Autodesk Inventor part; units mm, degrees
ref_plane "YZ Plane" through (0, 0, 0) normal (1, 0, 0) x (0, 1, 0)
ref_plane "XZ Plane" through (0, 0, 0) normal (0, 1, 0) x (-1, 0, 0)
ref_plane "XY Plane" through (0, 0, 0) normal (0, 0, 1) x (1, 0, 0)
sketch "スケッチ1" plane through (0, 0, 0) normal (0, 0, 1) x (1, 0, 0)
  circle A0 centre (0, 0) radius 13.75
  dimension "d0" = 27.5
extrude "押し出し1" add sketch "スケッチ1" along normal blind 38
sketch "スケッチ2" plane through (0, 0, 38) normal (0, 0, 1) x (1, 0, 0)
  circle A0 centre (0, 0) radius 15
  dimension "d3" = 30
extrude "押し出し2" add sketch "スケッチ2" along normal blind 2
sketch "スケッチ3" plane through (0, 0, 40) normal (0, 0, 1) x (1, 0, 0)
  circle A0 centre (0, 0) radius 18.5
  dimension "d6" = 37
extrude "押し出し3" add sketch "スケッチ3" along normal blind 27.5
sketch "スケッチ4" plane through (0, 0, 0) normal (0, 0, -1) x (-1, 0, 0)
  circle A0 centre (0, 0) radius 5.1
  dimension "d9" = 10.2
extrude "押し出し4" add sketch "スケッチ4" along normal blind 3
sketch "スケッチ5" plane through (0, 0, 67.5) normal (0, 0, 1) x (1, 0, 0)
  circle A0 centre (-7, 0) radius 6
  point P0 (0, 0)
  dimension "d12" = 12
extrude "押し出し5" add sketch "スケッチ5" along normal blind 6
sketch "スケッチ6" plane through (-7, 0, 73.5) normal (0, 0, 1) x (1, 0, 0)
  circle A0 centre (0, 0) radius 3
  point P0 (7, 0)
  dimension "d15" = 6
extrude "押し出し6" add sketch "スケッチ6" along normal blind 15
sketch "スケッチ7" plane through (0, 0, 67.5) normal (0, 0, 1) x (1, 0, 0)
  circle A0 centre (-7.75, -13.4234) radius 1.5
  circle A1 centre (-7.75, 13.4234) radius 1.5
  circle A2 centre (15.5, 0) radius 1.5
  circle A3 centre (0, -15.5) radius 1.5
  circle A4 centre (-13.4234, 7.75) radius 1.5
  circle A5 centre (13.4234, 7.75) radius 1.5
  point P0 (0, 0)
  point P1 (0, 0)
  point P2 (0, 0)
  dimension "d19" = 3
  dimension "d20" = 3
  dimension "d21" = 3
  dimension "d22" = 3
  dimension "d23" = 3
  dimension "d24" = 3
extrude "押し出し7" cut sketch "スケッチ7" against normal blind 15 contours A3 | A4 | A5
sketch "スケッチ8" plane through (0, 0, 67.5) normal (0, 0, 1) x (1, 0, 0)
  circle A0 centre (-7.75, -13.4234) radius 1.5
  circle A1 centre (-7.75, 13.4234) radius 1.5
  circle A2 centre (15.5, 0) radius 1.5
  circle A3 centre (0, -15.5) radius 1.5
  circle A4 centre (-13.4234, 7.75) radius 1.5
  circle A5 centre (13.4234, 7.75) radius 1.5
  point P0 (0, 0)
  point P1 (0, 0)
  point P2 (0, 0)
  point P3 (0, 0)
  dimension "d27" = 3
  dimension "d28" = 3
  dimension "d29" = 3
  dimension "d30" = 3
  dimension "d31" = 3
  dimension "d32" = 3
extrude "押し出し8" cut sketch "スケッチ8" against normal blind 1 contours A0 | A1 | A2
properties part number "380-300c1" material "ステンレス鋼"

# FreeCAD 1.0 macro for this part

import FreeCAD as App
import Part
import Sketcher
from FreeCAD import Vector

doc = App.newDocument("Part")
body = doc.addObject("PartDesign::Body", "Body")

# Sketch on XY plane
sketch1 = doc.addObject("Sketcher::SketchObject", "Sketch")
body.addObject(sketch1)
sketch1.AttachmentSupport = (doc.XY_Plane, [""])
sketch1.MapMode = "FlatFace"
sketch1.addGeometry(Part.Circle(Vector(0, 0, 0), Vector(0, 0, 1), 13.75), False)
sketch1.addConstraint(Sketcher.Constraint("Coincident", 0, 3, -1, 1))
sketch1.addConstraint(Sketcher.Constraint("Diameter", 0, 27.5))
pad1 = doc.addObject("PartDesign::Pad", "Pad")
body.addObject(pad1)
pad1.Profile = sketch1
pad1.Length = 38

# Sketch on XY plane
sketch2 = doc.addObject("Sketcher::SketchObject", "Sketch001")
body.addObject(sketch2)
sketch2.AttachmentSupport = (doc.XY_Plane, [""])
sketch2.MapMode = "FlatFace"
sketch2.AttachmentOffset = App.Placement(Vector(0, 0, 38), App.Rotation())
sketch2.addGeometry(Part.Circle(Vector(0, 0, 0), Vector(0, 0, 1), 15), False)
sketch2.addConstraint(Sketcher.Constraint("Coincident", 0, 3, -1, 1))
sketch2.addConstraint(Sketcher.Constraint("Diameter", 0, 30.0))
pad2 = doc.addObject("PartDesign::Pad", "Pad001")
body.addObject(pad2)
pad2.Profile = sketch2
pad2.Length = 2

# Sketch on XY plane
sketch3 = doc.addObject("Sketcher::SketchObject", "Sketch002")
body.addObject(sketch3)
sketch3.AttachmentSupport = (doc.XY_Plane, [""])
sketch3.MapMode = "FlatFace"
sketch3.AttachmentOffset = App.Placement(Vector(0, 0, 40), App.Rotation())
sketch3.addGeometry(Part.Circle(Vector(0, 0, 0), Vector(0, 0, 1), 18.5), False)
sketch3.addConstraint(Sketcher.Constraint("Coincident", 0, 3, -1, 1))
sketch3.addConstraint(Sketcher.Constraint("Diameter", 0, 37.0))
pad3 = doc.addObject("PartDesign::Pad", "Pad002")
body.addObject(pad3)
pad3.Profile = sketch3
pad3.Length = 27.5

# Sketch on XY plane
sketch4 = doc.addObject("Sketcher::SketchObject", "Sketch003")
body.addObject(sketch4)
sketch4.AttachmentSupport = (doc.XY_Plane, [""])
sketch4.MapMode = "FlatFace"
sketch4.addGeometry(Part.Circle(Vector(0, 0, 0), Vector(0, 0, 1), 5.1), False)
sketch4.addConstraint(Sketcher.Constraint("Coincident", 0, 3, -1, 1))
sketch4.addConstraint(Sketcher.Constraint("Diameter", 0, 10.2))
pad4 = doc.addObject("PartDesign::Pad", "Pad003")
body.addObject(pad4)
pad4.Profile = sketch4
pad4.Length = 3
pad4.Reversed = True

# Sketch on XY plane
sketch5 = doc.addObject("Sketcher::SketchObject", "Sketch004")
body.addObject(sketch5)
sketch5.AttachmentSupport = (doc.XY_Plane, [""])
sketch5.MapMode = "FlatFace"
sketch5.AttachmentOffset = App.Placement(Vector(0, 0, 67.5), App.Rotation())
sketch5.addGeometry(Part.Circle(Vector(-7, 0, 0), Vector(0, 0, 1), 6), False)
sketch5.addConstraint(Sketcher.Constraint("PointOnObject", 0, 3, -1))
sketch5.addConstraint(Sketcher.Constraint("Diameter", 0, 12.0))
sketch5.addConstraint(Sketcher.Constraint("DistanceX", 0, 3, -1, 1, 7.0))
pad5 = doc.addObject("PartDesign::Pad", "Pad004")
body.addObject(pad5)
pad5.Profile = sketch5
pad5.Length = 6

# Sketch on XY plane
sketch6 = doc.addObject("Sketcher::SketchObject", "Sketch005")
body.addObject(sketch6)
sketch6.AttachmentSupport = (doc.XY_Plane, [""])
sketch6.MapMode = "FlatFace"
sketch6.AttachmentOffset = App.Placement(Vector(0, 0, 73.5), App.Rotation())
sketch6.addGeometry(Part.Circle(Vector(-7, 0, 0), Vector(0, 0, 1), 3), False)
sketch6.addConstraint(Sketcher.Constraint("PointOnObject", 0, 3, -1))
sketch6.addConstraint(Sketcher.Constraint("Diameter", 0, 6.0))
sketch6.addConstraint(Sketcher.Constraint("DistanceX", 0, 3, -1, 1, 7.0))
pad6 = doc.addObject("PartDesign::Pad", "Pad005")
body.addObject(pad6)
pad6.Profile = sketch6
pad6.Length = 15

# Sketch on XY plane
sketch7 = doc.addObject("Sketcher::SketchObject", "Sketch006")
body.addObject(sketch7)
sketch7.AttachmentSupport = (doc.XY_Plane, [""])
sketch7.MapMode = "FlatFace"
sketch7.AttachmentOffset = App.Placement(Vector(0, 0, 67.5), App.Rotation())
sketch7.addGeometry(Part.Circle(Vector(0, -15.5, 0), Vector(0, 0, 1), 1.5), False)
sketch7.addGeometry(Part.Circle(Vector(-13.4234, 7.75, 0), Vector(0, 0, 1), 1.5), False)
sketch7.addGeometry(Part.Circle(Vector(13.4234, 7.75, 0), Vector(0, 0, 1), 1.5), False)
sketch7.addConstraint(Sketcher.Constraint("Equal", 0, 1))
sketch7.addConstraint(Sketcher.Constraint("Equal", 1, 2))
sketch7.addConstraint(Sketcher.Constraint("Symmetric", 1, 3, 2, 3, -2))
sketch7.addConstraint(Sketcher.Constraint("PointOnObject", 0, 3, -2))
sketch7.addConstraint(Sketcher.Constraint("Diameter", 0, 3.0))
sketch7.addConstraint(Sketcher.Constraint("DistanceY", 0, 3, -1, 1, 15.5))
sketch7.addConstraint(Sketcher.Constraint("DistanceY", -1, 1, 1, 3, 7.75))
sketch7.addConstraint(Sketcher.Constraint("DistanceX", 1, 3, -1, 1, 13.4234))
pocket1 = doc.addObject("PartDesign::Pocket", "Pocket")
body.addObject(pocket1)
pocket1.Profile = sketch7
pocket1.Length = 15

# Sketch on XY plane
sketch8 = doc.addObject("Sketcher::SketchObject", "Sketch007")
body.addObject(sketch8)
sketch8.AttachmentSupport = (doc.XY_Plane, [""])
sketch8.MapMode = "FlatFace"
sketch8.AttachmentOffset = App.Placement(Vector(0, 0, 67.5), App.Rotation())
sketch8.addGeometry(Part.Circle(Vector(-7.75, -13.4234, 0), Vector(0, 0, 1), 1.5), False)
sketch8.addGeometry(Part.Circle(Vector(-7.75, 13.4234, 0), Vector(0, 0, 1), 1.5), False)
sketch8.addGeometry(Part.Circle(Vector(15.5, 0, 0), Vector(0, 0, 1), 1.5), False)
sketch8.addConstraint(Sketcher.Constraint("Equal", 0, 1))
sketch8.addConstraint(Sketcher.Constraint("Equal", 1, 2))
sketch8.addConstraint(Sketcher.Constraint("Symmetric", 0, 3, 1, 3, -1))
sketch8.addConstraint(Sketcher.Constraint("PointOnObject", 2, 3, -1))
sketch8.addConstraint(Sketcher.Constraint("Diameter", 0, 3.0))
sketch8.addConstraint(Sketcher.Constraint("DistanceX", -1, 1, 2, 3, 15.5))
sketch8.addConstraint(Sketcher.Constraint("DistanceX", 0, 3, -1, 1, 7.75))
sketch8.addConstraint(Sketcher.Constraint("DistanceY", 0, 3, -1, 1, 13.4234))
pocket2 = doc.addObject("PartDesign::Pocket", "Pocket001")
body.addObject(pocket2)
pocket2.Profile = sketch8
pocket2.Length = 1

doc.recompute()
